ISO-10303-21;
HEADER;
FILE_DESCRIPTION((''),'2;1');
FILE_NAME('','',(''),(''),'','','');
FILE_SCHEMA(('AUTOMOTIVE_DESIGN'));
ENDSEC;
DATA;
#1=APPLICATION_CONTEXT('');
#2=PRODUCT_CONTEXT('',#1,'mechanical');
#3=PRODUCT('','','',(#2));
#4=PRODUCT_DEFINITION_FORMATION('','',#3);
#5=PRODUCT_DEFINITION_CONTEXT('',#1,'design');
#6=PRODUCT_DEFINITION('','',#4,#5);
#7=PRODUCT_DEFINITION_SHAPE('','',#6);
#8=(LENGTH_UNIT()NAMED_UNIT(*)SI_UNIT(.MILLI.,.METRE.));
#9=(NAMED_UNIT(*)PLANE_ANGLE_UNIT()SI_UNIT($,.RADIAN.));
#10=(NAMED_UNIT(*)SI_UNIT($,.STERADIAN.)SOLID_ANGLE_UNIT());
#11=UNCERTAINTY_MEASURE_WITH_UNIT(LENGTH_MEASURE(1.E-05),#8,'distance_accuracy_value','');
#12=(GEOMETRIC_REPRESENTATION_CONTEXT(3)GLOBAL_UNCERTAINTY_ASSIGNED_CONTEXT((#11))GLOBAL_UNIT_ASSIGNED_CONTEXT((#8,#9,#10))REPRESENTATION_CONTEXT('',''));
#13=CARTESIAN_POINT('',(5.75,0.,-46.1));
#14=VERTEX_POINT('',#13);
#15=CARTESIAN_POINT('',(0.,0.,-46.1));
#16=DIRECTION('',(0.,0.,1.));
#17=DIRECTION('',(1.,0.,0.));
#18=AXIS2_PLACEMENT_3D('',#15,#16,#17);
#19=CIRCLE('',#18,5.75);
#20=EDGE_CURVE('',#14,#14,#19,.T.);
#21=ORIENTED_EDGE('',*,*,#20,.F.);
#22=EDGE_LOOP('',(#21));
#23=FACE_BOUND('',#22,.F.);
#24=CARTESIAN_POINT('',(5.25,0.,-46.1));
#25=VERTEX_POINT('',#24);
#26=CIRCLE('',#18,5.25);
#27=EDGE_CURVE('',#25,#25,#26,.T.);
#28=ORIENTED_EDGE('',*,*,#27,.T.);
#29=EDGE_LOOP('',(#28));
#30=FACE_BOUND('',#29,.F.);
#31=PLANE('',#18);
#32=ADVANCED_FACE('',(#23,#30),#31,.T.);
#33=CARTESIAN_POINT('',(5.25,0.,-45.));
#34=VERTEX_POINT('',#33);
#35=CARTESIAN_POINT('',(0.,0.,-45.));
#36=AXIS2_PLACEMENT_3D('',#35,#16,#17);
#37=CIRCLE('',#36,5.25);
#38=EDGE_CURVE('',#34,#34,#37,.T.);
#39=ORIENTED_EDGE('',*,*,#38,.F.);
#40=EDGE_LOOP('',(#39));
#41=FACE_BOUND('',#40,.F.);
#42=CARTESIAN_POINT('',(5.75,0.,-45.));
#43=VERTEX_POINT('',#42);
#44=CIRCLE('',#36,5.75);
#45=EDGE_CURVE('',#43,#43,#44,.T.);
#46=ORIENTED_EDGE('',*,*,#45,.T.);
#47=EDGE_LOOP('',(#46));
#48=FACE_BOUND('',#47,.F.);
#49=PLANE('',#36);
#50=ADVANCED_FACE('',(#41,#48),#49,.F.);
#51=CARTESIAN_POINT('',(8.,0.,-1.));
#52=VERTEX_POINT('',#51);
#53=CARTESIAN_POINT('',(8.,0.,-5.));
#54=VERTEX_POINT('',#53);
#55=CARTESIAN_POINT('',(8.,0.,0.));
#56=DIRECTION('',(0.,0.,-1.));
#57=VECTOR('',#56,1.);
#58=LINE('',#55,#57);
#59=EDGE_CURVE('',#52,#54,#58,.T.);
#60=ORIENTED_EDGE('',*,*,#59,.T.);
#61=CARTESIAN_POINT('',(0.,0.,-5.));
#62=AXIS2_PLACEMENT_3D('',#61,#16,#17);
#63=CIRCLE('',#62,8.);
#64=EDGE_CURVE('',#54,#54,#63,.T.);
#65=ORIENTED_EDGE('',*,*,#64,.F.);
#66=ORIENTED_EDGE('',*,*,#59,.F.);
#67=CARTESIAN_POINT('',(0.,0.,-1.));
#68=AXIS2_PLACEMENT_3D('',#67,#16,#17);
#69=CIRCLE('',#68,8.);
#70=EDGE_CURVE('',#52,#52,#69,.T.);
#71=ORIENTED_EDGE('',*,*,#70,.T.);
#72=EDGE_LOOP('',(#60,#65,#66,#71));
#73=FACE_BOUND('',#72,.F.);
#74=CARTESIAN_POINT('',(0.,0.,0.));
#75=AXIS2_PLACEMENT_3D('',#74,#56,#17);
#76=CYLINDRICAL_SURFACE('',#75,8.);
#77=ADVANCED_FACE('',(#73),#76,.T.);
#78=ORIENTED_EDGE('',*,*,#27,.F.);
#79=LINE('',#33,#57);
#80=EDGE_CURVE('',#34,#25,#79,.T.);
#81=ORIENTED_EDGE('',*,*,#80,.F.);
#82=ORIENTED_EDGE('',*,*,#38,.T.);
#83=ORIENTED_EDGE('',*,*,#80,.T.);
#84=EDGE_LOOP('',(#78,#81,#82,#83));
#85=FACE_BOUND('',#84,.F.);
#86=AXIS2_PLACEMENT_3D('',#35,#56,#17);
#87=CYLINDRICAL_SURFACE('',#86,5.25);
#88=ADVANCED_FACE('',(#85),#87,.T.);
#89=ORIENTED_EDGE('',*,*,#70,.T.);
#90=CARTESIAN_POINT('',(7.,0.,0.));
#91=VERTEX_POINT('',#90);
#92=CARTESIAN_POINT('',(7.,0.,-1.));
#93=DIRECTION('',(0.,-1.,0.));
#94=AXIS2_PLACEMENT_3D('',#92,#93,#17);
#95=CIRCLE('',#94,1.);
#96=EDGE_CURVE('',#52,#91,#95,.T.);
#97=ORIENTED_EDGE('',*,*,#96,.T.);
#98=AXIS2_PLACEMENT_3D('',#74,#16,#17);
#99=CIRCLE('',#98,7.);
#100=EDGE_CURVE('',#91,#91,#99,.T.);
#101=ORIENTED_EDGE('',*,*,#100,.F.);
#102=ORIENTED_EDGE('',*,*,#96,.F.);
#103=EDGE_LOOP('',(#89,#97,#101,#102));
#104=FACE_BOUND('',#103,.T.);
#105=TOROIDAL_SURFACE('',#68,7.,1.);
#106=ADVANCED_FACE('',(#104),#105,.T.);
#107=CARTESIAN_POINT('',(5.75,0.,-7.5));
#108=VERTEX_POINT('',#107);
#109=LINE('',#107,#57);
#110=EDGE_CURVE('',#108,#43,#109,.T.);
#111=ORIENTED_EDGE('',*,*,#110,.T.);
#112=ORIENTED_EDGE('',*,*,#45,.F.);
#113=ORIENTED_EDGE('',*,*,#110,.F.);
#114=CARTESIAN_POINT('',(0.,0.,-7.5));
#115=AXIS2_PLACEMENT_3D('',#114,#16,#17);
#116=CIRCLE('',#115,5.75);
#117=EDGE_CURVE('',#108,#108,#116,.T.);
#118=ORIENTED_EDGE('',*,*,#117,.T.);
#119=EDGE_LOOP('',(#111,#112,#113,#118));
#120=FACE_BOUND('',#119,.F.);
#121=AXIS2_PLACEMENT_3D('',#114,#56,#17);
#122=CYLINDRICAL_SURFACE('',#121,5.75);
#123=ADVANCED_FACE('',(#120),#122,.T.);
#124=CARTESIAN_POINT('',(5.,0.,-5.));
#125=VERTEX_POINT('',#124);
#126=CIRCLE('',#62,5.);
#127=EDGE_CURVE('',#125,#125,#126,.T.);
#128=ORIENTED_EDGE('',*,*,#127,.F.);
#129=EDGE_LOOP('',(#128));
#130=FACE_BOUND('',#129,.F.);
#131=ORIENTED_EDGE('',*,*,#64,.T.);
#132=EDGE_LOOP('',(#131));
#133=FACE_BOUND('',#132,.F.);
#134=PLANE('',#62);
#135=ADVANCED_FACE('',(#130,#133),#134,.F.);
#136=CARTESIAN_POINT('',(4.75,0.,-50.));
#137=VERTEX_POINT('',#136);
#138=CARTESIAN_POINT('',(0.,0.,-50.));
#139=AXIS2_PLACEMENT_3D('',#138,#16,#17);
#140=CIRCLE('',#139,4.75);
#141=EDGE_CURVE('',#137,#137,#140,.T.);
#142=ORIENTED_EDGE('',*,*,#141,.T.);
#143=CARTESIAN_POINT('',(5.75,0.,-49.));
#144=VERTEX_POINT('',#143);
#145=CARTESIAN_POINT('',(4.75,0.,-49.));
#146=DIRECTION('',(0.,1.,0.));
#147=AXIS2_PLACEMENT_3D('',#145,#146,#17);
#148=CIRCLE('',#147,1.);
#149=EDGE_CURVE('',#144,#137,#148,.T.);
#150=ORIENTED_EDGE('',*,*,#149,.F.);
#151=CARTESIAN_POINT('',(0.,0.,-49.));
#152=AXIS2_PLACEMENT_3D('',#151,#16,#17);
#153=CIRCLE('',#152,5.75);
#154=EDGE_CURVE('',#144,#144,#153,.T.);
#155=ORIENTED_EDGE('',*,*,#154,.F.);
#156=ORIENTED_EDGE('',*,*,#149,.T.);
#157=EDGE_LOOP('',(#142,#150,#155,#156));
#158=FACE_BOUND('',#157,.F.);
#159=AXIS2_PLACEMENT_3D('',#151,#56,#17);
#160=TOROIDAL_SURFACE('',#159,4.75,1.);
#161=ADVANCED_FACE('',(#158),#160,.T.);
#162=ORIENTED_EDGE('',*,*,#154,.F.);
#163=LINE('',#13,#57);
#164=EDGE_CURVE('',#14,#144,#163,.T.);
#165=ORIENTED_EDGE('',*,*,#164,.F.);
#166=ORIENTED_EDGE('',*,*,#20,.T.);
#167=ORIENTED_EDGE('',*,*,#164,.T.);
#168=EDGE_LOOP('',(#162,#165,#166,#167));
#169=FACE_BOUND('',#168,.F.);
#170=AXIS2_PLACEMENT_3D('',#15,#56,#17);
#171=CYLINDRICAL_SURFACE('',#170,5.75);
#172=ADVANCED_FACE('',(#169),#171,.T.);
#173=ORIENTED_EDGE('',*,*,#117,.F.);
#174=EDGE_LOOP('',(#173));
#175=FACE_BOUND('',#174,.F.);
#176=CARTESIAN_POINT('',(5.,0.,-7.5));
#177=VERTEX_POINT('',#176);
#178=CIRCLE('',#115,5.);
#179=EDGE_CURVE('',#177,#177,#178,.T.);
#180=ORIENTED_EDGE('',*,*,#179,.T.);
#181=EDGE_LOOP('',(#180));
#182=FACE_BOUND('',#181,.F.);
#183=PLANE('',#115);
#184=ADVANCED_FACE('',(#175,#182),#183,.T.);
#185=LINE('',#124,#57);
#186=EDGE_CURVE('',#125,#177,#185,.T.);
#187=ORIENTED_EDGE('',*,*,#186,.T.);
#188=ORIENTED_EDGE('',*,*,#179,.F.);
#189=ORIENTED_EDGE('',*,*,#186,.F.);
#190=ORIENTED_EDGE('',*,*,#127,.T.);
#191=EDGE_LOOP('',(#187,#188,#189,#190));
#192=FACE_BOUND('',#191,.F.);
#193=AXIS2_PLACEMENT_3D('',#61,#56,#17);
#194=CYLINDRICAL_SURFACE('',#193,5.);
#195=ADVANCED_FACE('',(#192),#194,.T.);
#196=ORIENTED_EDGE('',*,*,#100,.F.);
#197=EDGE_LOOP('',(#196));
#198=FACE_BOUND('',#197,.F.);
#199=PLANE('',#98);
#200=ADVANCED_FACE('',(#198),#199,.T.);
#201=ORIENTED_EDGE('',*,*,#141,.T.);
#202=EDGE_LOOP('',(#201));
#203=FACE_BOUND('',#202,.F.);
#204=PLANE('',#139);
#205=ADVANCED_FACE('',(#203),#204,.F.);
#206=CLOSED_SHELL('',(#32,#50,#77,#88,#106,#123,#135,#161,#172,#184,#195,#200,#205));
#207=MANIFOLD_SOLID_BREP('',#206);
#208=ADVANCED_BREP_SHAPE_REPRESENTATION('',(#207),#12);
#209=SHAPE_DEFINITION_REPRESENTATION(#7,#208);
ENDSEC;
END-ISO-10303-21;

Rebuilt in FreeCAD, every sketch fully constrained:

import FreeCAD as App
import Part
import Sketcher
Q = App.Units.Quantity


def edges_at(feature, points):
    """Names of the edges that pass closest to the given points."""
    edges = feature.Shape.Edges
    near = lambda p: min(range(len(edges)), key=lambda i: edges[i].distToShape(Part.Vertex(*p))[0])
    return sorted({f"Edge{near(p) + 1}" for p in points})

doc = App.newDocument("Part")
params = doc.addObject("Spreadsheet::Sheet", "Params")
for row, (alias, value) in enumerate([
    ("sketch1_width", "8 mm"),
    ("sketch1_height", "5 mm"),
    ("sketch1_height2", "2.5 mm"),
    ("sketch1_height3", "37.5 mm"),
    ("sketch1_height4", "1.1 mm"),
    ("revolution_angle", "360 deg"),
    ("fillet_radius", "1 mm"),
], start=1):
    params.set(f"A{row}", alias)
    params.set(f"B{row}", "=" + value)
    params.setAlias(f"B{row}", alias)

body = doc.addObject("PartDesign::Body", "Body")

# Sketch on XZ plane
sketch1 = doc.addObject("Sketcher::SketchObject", "Sketch")
body.addObject(sketch1)
sketch1.AttachmentSupport = (doc.XZ_Plane, [""])
sketch1.MapMode = "FlatFace"
sketch1.addGeometry(Part.LineSegment(App.Vector(0, 0, 0), App.Vector(8, 0, 0)), False)
sketch1.addGeometry(Part.LineSegment(App.Vector(8, 0, 0), App.Vector(8, -5, 0)), False)
sketch1.addGeometry(Part.LineSegment(App.Vector(8, -5, 0), App.Vector(5, -5, 0)), False)
sketch1.addGeometry(Part.LineSegment(App.Vector(5, -5, 0), App.Vector(5, -7.5, 0)), False)
sketch1.addGeometry(Part.LineSegment(App.Vector(5, -7.5, 0), App.Vector(5.75, -7.5, 0)), False)
sketch1.addGeometry(Part.LineSegment(App.Vector(5.75, -7.5, 0), App.Vector(5.75, -45, 0)), False)
sketch1.addGeometry(Part.LineSegment(App.Vector(5.75, -45, 0), App.Vector(5.25, -45, 0)), False)
sketch1.addGeometry(Part.LineSegment(App.Vector(5.25, -45, 0), App.Vector(5.25, -46.1, 0)), False)
sketch1.addGeometry(Part.LineSegment(App.Vector(5.25, -46.1, 0), App.Vector(5.75, -46.1, 0)), False)
sketch1.addGeometry(Part.LineSegment(App.Vector(5.75, -46.1, 0), App.Vector(5.75, -50, 0)), False)
sketch1.addGeometry(Part.LineSegment(App.Vector(5.75, -50, 0), App.Vector(0, -50, 0)), False)
sketch1.addGeometry(Part.LineSegment(App.Vector(0, -50, 0), App.Vector(0, 0, 0)), False)
sketch1.addConstraint(Sketcher.Constraint("Coincident", 0, 2, 1, 1))
sketch1.addConstraint(Sketcher.Constraint("Coincident", 1, 2, 2, 1))
sketch1.addConstraint(Sketcher.Constraint("Coincident", 2, 2, 3, 1))
sketch1.addConstraint(Sketcher.Constraint("Coincident", 3, 2, 4, 1))
sketch1.addConstraint(Sketcher.Constraint("Coincident", 4, 2, 5, 1))
sketch1.addConstraint(Sketcher.Constraint("Coincident", 5, 2, 6, 1))
sketch1.addConstraint(Sketcher.Constraint("Coincident", 6, 2, 7, 1))
sketch1.addConstraint(Sketcher.Constraint("Coincident", 7, 2, 8, 1))
sketch1.addConstraint(Sketcher.Constraint("Coincident", 8, 2, 9, 1))
sketch1.addConstraint(Sketcher.Constraint("Coincident", 9, 2, 10, 1))
sketch1.addConstraint(Sketcher.Constraint("Coincident", 10, 2, 11, 1))
sketch1.addConstraint(Sketcher.Constraint("Coincident", 11, 2, 0, 1))
sketch1.addConstraint(Sketcher.Constraint("Horizontal", 0))
sketch1.addConstraint(Sketcher.Constraint("Vertical", 1))
sketch1.addConstraint(Sketcher.Constraint("Horizontal", 2))
sketch1.addConstraint(Sketcher.Constraint("Vertical", 3))
sketch1.addConstraint(Sketcher.Constraint("Horizontal", 4))
sketch1.addConstraint(Sketcher.Constraint("Vertical", 5))
sketch1.addConstraint(Sketcher.Constraint("Horizontal", 6))
sketch1.addConstraint(Sketcher.Constraint("Vertical", 7))
sketch1.addConstraint(Sketcher.Constraint("Horizontal", 8))
sketch1.addConstraint(Sketcher.Constraint("Vertical", 9))
sketch1.addConstraint(Sketcher.Constraint("Horizontal", 10))
sketch1.addConstraint(Sketcher.Constraint("Vertical", 11))
sketch1.addConstraint(Sketcher.Constraint("Coincident", 11, 2, -1, 1))
sketch1.addConstraint(Sketcher.Constraint("Vertical", 5, 2, 8, 2))
sketch1.addConstraint(Sketcher.Constraint("DistanceX", 0, 1, 0, 2, Q("8 mm")))
sketch1.addConstraint(Sketcher.Constraint("DistanceY", 1, 2, 1, 1, Q("5 mm")))
sketch1.addConstraint(Sketcher.Constraint("DistanceY", 3, 2, 3, 1, Q("2.5 mm")))
sketch1.addConstraint(Sketcher.Constraint("DistanceY", 5, 2, 5, 1, Q("37.5 mm")))
sketch1.addConstraint(Sketcher.Constraint("DistanceY", 7, 2, 7, 1, Q("1.1 mm")))
sketch1.addConstraint(Sketcher.Constraint("DistanceY", 9, 2, 9, 1, Q("3.9 mm")))
sketch1.addConstraint(Sketcher.Constraint("DistanceX", -1, 1, 2, 2, Q("5 mm")))
sketch1.addConstraint(Sketcher.Constraint("DistanceX", 10, 2, 10, 1, Q("5.75 mm")))
sketch1.addConstraint(Sketcher.Constraint("DistanceX", -1, 1, 6, 2, Q("5.25 mm")))
sketch1.setExpression("Constraints[26]", "Params.sketch1_width")
sketch1.setExpression("Constraints[27]", "Params.sketch1_height")
sketch1.setExpression("Constraints[28]", "Params.sketch1_height2")
sketch1.setExpression("Constraints[29]", "Params.sketch1_height3")
sketch1.setExpression("Constraints[30]", "Params.sketch1_height4")
revolution = doc.addObject("PartDesign::Revolution", "Revolution")
body.addObject(revolution)
revolution.Profile = sketch1
revolution.ReferenceAxis = (sketch1, ["V_Axis"])
revolution.setExpression("Angle", "Params.revolution_angle")
doc.recompute()

fillet = doc.addObject("PartDesign::Fillet", "Fillet")
body.addObject(fillet)
fillet.Base = (revolution, edges_at(revolution, [(-8, 0, 0), (-5.75, 0, -50)]))
fillet.setExpression("Radius", "Params.fillet_radius")

doc.recompute()
